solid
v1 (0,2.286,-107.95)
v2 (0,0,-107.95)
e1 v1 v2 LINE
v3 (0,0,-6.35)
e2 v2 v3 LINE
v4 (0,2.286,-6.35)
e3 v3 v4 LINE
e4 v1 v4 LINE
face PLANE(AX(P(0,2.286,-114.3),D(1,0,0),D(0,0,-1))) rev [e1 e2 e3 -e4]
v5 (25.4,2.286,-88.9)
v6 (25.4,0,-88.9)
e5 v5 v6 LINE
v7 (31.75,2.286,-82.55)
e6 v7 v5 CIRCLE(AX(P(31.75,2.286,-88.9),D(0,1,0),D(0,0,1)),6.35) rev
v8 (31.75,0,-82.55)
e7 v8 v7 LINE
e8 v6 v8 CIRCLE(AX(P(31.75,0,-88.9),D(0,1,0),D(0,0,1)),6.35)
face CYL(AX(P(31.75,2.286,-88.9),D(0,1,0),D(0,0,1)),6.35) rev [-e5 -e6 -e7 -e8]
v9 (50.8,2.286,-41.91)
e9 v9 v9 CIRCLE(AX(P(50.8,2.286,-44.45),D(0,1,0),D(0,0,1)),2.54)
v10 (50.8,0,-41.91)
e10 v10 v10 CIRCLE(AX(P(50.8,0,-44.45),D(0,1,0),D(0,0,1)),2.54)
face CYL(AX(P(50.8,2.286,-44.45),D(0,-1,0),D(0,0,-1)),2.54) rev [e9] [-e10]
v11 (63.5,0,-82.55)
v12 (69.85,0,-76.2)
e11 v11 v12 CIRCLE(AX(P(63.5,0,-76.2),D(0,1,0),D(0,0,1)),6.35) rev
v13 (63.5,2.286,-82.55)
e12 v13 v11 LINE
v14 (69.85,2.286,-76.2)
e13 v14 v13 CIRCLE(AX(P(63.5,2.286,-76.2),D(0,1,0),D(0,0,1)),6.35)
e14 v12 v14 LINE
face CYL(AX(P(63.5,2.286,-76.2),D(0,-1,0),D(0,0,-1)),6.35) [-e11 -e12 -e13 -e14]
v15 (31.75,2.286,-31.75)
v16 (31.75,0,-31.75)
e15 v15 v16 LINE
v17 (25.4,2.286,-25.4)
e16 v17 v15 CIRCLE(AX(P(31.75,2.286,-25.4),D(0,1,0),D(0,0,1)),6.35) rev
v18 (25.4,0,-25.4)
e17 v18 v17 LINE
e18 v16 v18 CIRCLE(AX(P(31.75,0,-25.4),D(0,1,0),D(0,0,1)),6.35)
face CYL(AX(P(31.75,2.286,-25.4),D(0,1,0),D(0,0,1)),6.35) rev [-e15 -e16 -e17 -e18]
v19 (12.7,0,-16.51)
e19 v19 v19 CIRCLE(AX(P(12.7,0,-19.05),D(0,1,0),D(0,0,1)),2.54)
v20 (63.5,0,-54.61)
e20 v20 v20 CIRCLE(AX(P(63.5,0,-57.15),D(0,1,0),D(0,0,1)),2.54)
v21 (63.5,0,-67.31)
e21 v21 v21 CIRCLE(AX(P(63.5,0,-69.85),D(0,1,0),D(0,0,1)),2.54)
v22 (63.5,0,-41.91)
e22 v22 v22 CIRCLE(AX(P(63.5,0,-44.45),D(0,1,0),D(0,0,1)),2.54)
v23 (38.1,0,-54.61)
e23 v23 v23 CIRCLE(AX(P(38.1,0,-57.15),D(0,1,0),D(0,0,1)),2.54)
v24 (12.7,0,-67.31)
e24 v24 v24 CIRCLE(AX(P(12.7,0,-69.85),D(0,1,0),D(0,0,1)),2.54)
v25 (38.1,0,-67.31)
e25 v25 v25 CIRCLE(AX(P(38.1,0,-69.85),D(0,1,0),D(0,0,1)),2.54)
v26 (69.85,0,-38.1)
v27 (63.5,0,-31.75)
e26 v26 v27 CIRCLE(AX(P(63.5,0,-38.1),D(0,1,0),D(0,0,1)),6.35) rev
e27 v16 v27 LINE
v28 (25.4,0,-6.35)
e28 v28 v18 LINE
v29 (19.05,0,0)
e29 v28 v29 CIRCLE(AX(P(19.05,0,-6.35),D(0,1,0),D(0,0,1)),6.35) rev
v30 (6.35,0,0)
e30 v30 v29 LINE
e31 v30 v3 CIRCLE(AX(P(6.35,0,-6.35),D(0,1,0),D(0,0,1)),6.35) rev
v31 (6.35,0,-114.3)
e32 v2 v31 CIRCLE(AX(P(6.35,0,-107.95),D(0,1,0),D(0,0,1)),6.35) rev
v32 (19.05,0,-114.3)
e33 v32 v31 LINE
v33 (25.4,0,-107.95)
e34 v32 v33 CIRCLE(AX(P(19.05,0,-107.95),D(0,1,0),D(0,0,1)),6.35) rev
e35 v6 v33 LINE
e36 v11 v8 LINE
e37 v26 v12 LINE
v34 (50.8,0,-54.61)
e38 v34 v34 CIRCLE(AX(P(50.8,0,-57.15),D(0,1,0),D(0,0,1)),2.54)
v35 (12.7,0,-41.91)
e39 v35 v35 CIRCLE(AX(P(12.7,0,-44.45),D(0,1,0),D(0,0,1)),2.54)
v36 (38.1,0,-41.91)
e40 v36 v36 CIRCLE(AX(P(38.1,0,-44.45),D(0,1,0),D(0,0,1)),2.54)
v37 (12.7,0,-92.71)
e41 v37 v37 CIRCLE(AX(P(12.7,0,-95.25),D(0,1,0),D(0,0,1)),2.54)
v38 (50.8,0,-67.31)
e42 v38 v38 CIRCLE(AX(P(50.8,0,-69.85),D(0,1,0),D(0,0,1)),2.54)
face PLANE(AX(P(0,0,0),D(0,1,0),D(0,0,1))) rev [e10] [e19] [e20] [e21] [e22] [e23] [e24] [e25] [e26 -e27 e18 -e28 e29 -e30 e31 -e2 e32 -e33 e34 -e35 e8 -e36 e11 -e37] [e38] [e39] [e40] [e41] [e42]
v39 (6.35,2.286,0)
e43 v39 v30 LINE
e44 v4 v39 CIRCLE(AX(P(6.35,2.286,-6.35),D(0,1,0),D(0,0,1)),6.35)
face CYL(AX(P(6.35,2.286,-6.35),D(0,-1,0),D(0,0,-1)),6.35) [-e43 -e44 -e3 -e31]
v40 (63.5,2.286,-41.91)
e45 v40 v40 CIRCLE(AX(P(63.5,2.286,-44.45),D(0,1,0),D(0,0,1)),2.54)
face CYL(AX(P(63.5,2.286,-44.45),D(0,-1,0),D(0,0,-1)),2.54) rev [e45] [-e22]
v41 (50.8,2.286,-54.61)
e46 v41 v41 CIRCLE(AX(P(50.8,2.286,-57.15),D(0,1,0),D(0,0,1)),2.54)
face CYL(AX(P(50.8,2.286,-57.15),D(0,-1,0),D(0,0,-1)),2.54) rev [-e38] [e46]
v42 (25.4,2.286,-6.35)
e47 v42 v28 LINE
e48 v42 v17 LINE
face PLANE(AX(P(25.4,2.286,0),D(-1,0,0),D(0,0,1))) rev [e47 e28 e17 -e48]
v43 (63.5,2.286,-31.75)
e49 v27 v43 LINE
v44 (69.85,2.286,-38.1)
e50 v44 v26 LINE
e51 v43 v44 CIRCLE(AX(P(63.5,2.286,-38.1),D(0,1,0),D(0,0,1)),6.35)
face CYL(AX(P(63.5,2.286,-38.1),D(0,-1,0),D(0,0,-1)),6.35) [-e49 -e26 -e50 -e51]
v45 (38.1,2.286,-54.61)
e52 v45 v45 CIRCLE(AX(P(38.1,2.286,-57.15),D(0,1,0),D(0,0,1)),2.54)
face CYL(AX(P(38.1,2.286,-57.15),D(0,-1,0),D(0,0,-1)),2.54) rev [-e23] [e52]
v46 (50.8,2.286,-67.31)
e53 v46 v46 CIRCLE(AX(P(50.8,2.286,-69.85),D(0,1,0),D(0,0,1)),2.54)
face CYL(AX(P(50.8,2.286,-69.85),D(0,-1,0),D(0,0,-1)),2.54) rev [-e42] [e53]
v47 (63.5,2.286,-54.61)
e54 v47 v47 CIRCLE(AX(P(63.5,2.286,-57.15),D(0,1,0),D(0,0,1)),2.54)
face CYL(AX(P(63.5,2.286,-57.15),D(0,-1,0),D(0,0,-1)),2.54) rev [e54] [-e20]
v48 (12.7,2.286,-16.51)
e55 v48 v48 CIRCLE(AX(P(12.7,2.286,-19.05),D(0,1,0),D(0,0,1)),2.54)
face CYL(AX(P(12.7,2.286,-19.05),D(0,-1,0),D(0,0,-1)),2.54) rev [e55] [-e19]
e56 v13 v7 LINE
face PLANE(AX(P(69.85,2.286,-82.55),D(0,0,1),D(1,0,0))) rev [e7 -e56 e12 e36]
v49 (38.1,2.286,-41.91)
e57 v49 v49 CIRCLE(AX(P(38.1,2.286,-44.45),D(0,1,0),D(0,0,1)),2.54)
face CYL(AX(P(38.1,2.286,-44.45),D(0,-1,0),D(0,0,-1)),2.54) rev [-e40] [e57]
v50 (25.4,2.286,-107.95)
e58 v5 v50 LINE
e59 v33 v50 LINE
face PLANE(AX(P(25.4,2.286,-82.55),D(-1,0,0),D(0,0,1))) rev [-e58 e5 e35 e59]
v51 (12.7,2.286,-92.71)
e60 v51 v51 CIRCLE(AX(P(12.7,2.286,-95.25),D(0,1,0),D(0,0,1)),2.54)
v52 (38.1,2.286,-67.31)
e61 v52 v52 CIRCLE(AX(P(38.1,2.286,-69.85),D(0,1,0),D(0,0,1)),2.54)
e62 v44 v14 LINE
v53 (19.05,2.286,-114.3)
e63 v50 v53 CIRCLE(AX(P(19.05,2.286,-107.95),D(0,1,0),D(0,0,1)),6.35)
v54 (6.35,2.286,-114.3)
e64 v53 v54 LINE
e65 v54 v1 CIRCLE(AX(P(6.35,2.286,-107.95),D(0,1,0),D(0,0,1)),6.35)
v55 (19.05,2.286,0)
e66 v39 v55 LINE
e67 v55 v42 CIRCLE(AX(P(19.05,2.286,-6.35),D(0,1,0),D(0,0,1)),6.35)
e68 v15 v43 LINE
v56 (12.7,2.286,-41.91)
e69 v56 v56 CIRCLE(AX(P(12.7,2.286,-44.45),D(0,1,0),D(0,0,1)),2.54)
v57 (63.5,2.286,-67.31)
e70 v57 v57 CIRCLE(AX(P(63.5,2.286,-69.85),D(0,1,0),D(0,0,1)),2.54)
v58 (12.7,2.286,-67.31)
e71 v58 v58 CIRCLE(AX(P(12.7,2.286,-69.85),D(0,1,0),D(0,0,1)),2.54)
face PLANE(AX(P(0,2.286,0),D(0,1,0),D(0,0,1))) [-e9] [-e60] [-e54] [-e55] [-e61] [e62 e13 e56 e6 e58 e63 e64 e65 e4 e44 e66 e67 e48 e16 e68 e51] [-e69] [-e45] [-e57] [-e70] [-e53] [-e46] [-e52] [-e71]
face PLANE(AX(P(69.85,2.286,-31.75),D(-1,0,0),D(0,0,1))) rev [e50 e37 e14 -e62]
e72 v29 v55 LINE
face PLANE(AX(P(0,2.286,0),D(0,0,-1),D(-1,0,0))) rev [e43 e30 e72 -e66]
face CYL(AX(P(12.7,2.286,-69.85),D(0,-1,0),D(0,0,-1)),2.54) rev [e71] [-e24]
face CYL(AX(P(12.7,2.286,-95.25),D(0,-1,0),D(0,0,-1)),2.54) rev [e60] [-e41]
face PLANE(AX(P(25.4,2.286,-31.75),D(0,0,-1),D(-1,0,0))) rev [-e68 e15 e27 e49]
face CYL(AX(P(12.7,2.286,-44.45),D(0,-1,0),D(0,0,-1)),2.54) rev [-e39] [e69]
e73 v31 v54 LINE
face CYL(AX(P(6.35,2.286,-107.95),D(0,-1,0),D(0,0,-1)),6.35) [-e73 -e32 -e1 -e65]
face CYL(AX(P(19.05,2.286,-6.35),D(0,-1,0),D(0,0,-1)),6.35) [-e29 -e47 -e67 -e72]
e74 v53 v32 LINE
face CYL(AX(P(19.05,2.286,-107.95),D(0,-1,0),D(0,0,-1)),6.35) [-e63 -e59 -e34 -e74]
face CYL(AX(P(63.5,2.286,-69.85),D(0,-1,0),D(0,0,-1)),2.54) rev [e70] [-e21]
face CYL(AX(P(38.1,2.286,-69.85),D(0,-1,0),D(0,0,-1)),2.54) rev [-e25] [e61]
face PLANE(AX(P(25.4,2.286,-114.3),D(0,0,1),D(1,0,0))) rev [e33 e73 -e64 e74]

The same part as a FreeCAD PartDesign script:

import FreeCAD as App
import Part
import Sketcher

V = App.Vector
Q = App.Units.Quantity


def edges_at(feature, points):
    """Names of the edges that pass closest to the given points."""
    edges = feature.Shape.Edges
    near = lambda p: min(range(len(edges)), key=lambda i: edges[i].distToShape(Part.Vertex(*p))[0])
    return sorted({f"Edge{near(p) + 1}" for p in points})


def add_polygon(sketch, points):
    """Adds a closed chain of lines whose ends are joined by coincident constraints."""
    first, n = sketch.GeometryCount, len(points)
    for a, b in zip(points, points[1:] + points[:1]):
        sketch.addGeometry(Part.LineSegment(App.Vector(*a, 0), App.Vector(*b, 0)), False)
    for i in range(n):
        sketch.addConstraint(Sketcher.Constraint("Coincident", first + i, 2, first + (i + 1) % n, 1))

doc = App.newDocument("Part")
body = doc.addObject("PartDesign::Body", "Body")

# Sketch on XZ plane
sketch1 = doc.addObject("Sketcher::SketchObject", "Sketch")
body.addObject(sketch1)
sketch1.AttachmentSupport = (doc.XZ_Plane, [""])
sketch1.MapMode = "FlatFace"
add_polygon(sketch1, [(25.4, -114.3), (0, -114.3), (0, 0), (25.4, 0), (25.4, -31.75), (69.85, -31.75), (69.85, -82.55), (25.4, -82.55)])  # lines 0-7
sketch1.addGeometry(Part.Circle(V(12.7, -19.05, 0), V(0, 0, 1), 2.54), False)  # 8
sketch1.addGeometry(Part.Circle(V(12.7, -44.45, 0), V(0, 0, 1), 2.54), False)  # 9
sketch1.addGeometry(Part.Circle(V(38.1, -44.45, 0), V(0, 0, 1), 2.54), False)  # 10
sketch1.addGeometry(Part.Circle(V(50.8, -44.45, 0), V(0, 0, 1), 2.54), False)  # 11
sketch1.addGeometry(Part.Circle(V(38.1, -57.15, 0), V(0, 0, 1), 2.54), False)  # 12
sketch1.addGeometry(Part.Circle(V(50.8, -57.15, 0), V(0, 0, 1), 2.54), False)  # 13
sketch1.addGeometry(Part.Circle(V(63.5, -44.45, 0), V(0, 0, 1), 2.54), False)  # 14
sketch1.addGeometry(Part.Circle(V(63.5, -57.15, 0), V(0, 0, 1), 2.54), False)  # 15
sketch1.addGeometry(Part.Circle(V(12.7, -69.85, 0), V(0, 0, 1), 2.54), False)  # 16
sketch1.addGeometry(Part.Circle(V(12.7, -95.25, 0), V(0, 0, 1), 2.54), False)  # 17
sketch1.addGeometry(Part.Circle(V(38.1, -69.85, 0), V(0, 0, 1), 2.54), False)  # 18
sketch1.addGeometry(Part.Circle(V(50.8, -69.85, 0), V(0, 0, 1), 2.54), False)  # 19
sketch1.addGeometry(Part.Circle(V(63.5, -69.85, 0), V(0, 0, 1), 2.54), False)  # 20
sketch1.addConstraint(Sketcher.Constraint("Horizontal", 0))
sketch1.addConstraint(Sketcher.Constraint("Vertical", 1))
sketch1.addConstraint(Sketcher.Constraint("Horizontal", 2))
sketch1.addConstraint(Sketcher.Constraint("Vertical", 3))
sketch1.addConstraint(Sketcher.Constraint("Horizontal", 4))
sketch1.addConstraint(Sketcher.Constraint("Vertical", 5))
sketch1.addConstraint(Sketcher.Constraint("Horizontal", 6))
sketch1.addConstraint(Sketcher.Constraint("Vertical", 7))
sketch1.addConstraint(Sketcher.Constraint("Coincident", 1, 2, -1, 1))
sketch1.addConstraint(Sketcher.Constraint("Equal", 8, 9))
sketch1.addConstraint(Sketcher.Constraint("Equal", 9, 10))
sketch1.addConstraint(Sketcher.Constraint("Equal", 10, 11))
sketch1.addConstraint(Sketcher.Constraint("Equal", 11, 12))
sketch1.addConstraint(Sketcher.Constraint("Equal", 12, 13))
sketch1.addConstraint(Sketcher.Constraint("Equal", 13, 14))
sketch1.addConstraint(Sketcher.Constraint("Equal", 14, 15))
sketch1.addConstraint(Sketcher.Constraint("Equal", 15, 16))
sketch1.addConstraint(Sketcher.Constraint("Equal", 16, 17))
sketch1.addConstraint(Sketcher.Constraint("Equal", 17, 18))
sketch1.addConstraint(Sketcher.Constraint("Equal", 18, 19))
sketch1.addConstraint(Sketcher.Constraint("Equal", 19, 20))
sketch1.addConstraint(Sketcher.Constraint("Horizontal", 9, 3, 10, 3))
sketch1.addConstraint(Sketcher.Constraint("Horizontal", 10, 3, 11, 3))
sketch1.addConstraint(Sketcher.Constraint("Horizontal", 12, 3, 13, 3))
sketch1.addConstraint(Sketcher.Constraint("Horizontal", 11, 3, 14, 3))
sketch1.addConstraint(Sketcher.Constraint("Horizontal", 13, 3, 15, 3))
sketch1.addConstraint(Sketcher.Constraint("Horizontal", 16, 3, 18, 3))
sketch1.addConstraint(Sketcher.Constraint("Horizontal", 18, 3, 19, 3))
sketch1.addConstraint(Sketcher.Constraint("Horizontal", 19, 3, 20, 3))
sketch1.addConstraint(Sketcher.Constraint("Vertical", 8, 3, 9, 3))
sketch1.addConstraint(Sketcher.Constraint("Vertical", 10, 3, 12, 3))
sketch1.addConstraint(Sketcher.Constraint("Vertical", 11, 3, 13, 3))
sketch1.addConstraint(Sketcher.Constraint("Vertical", 14, 3, 15, 3))
sketch1.addConstraint(Sketcher.Constraint("Vertical", 9, 3, 16, 3))
sketch1.addConstraint(Sketcher.Constraint("Vertical", 16, 3, 17, 3))
sketch1.addConstraint(Sketcher.Constraint("Vertical", 12, 3, 18, 3))
sketch1.addConstraint(Sketcher.Constraint("Vertical", 13, 3, 19, 3))
sketch1.addConstraint(Sketcher.Constraint("Vertical", 15, 3, 20, 3))
sketch1.addConstraint(Sketcher.Constraint("Vertical", 3, 2, 6, 2))
sketch1.addConstraint(Sketcher.Constraint("Equal", 3, 7))
sketch1.addConstraint(Sketcher.Constraint("Diameter", 8, Q("0.2 in")))
sketch1.addConstraint(Sketcher.Constraint("DistanceX", 0, 2, 0, 1, Q("1 in")))
sketch1.addConstraint(Sketcher.Constraint("DistanceY", 5, 2, 5, 1, Q("2 in")))
sketch1.addConstraint(Sketcher.Constraint("DistanceY", 1, 1, 1, 2, Q("4.5 in")))
sketch1.addConstraint(Sketcher.Constraint("DistanceX", -1, 1, 11, 3, Q("2 in")))
sketch1.addConstraint(Sketcher.Constraint("DistanceY", 9, 3, 8, 3, Q("1 in")))
sketch1.addConstraint(Sketcher.Constraint("DistanceX", 9, 3, 10, 3, Q("1 in")))
sketch1.addConstraint(Sketcher.Constraint("DistanceX", 10, 3, 14, 3, Q("1 in")))
sketch1.addConstraint(Sketcher.Constraint("DistanceY", 16, 3, 9, 3, Q("1 in")))
sketch1.addConstraint(Sketcher.Constraint("DistanceY", 17, 3, 16, 3, Q("1 in")))
sketch1.addConstraint(Sketcher.Constraint("DistanceY", 12, 3, 3, 2, Q("1 in")))
sketch1.addConstraint(Sketcher.Constraint("DistanceX", 4, 1, 4, 2, Q("1.75 in")))
sketch1.addConstraint(Sketcher.Constraint("DistanceX", -1, 1, 8, 3, Q("0.5 in")))
sketch1.addConstraint(Sketcher.Constraint("DistanceY", 12, 3, 10, 3, Q("0.5 in")))
pad1 = doc.addObject("PartDesign::Pad", "Pad")
body.addObject(pad1)
pad1.Profile = sketch1
pad1.Length = Q("0.09 in")
pad1.Reversed = True
doc.recompute()

fillet = doc.addObject("PartDesign::Fillet", "Fillet")
body.addObject(fillet)
fillet.Base = (pad1, edges_at(pad1, [
    (25.4, 1.143, -82.55),
    (69.85, 1.143, -82.55),
    (69.85, 1.143, -31.75),
    (25.4, 1.143, -31.75),
    (25.4, 1.143, 0),
    (0, 1.143, 0),
    (0, 1.143, -114.3),
    (25.4, 1.143, -114.3),
]))
fillet.Radius = Q("0.25 in")

doc.recompute()
